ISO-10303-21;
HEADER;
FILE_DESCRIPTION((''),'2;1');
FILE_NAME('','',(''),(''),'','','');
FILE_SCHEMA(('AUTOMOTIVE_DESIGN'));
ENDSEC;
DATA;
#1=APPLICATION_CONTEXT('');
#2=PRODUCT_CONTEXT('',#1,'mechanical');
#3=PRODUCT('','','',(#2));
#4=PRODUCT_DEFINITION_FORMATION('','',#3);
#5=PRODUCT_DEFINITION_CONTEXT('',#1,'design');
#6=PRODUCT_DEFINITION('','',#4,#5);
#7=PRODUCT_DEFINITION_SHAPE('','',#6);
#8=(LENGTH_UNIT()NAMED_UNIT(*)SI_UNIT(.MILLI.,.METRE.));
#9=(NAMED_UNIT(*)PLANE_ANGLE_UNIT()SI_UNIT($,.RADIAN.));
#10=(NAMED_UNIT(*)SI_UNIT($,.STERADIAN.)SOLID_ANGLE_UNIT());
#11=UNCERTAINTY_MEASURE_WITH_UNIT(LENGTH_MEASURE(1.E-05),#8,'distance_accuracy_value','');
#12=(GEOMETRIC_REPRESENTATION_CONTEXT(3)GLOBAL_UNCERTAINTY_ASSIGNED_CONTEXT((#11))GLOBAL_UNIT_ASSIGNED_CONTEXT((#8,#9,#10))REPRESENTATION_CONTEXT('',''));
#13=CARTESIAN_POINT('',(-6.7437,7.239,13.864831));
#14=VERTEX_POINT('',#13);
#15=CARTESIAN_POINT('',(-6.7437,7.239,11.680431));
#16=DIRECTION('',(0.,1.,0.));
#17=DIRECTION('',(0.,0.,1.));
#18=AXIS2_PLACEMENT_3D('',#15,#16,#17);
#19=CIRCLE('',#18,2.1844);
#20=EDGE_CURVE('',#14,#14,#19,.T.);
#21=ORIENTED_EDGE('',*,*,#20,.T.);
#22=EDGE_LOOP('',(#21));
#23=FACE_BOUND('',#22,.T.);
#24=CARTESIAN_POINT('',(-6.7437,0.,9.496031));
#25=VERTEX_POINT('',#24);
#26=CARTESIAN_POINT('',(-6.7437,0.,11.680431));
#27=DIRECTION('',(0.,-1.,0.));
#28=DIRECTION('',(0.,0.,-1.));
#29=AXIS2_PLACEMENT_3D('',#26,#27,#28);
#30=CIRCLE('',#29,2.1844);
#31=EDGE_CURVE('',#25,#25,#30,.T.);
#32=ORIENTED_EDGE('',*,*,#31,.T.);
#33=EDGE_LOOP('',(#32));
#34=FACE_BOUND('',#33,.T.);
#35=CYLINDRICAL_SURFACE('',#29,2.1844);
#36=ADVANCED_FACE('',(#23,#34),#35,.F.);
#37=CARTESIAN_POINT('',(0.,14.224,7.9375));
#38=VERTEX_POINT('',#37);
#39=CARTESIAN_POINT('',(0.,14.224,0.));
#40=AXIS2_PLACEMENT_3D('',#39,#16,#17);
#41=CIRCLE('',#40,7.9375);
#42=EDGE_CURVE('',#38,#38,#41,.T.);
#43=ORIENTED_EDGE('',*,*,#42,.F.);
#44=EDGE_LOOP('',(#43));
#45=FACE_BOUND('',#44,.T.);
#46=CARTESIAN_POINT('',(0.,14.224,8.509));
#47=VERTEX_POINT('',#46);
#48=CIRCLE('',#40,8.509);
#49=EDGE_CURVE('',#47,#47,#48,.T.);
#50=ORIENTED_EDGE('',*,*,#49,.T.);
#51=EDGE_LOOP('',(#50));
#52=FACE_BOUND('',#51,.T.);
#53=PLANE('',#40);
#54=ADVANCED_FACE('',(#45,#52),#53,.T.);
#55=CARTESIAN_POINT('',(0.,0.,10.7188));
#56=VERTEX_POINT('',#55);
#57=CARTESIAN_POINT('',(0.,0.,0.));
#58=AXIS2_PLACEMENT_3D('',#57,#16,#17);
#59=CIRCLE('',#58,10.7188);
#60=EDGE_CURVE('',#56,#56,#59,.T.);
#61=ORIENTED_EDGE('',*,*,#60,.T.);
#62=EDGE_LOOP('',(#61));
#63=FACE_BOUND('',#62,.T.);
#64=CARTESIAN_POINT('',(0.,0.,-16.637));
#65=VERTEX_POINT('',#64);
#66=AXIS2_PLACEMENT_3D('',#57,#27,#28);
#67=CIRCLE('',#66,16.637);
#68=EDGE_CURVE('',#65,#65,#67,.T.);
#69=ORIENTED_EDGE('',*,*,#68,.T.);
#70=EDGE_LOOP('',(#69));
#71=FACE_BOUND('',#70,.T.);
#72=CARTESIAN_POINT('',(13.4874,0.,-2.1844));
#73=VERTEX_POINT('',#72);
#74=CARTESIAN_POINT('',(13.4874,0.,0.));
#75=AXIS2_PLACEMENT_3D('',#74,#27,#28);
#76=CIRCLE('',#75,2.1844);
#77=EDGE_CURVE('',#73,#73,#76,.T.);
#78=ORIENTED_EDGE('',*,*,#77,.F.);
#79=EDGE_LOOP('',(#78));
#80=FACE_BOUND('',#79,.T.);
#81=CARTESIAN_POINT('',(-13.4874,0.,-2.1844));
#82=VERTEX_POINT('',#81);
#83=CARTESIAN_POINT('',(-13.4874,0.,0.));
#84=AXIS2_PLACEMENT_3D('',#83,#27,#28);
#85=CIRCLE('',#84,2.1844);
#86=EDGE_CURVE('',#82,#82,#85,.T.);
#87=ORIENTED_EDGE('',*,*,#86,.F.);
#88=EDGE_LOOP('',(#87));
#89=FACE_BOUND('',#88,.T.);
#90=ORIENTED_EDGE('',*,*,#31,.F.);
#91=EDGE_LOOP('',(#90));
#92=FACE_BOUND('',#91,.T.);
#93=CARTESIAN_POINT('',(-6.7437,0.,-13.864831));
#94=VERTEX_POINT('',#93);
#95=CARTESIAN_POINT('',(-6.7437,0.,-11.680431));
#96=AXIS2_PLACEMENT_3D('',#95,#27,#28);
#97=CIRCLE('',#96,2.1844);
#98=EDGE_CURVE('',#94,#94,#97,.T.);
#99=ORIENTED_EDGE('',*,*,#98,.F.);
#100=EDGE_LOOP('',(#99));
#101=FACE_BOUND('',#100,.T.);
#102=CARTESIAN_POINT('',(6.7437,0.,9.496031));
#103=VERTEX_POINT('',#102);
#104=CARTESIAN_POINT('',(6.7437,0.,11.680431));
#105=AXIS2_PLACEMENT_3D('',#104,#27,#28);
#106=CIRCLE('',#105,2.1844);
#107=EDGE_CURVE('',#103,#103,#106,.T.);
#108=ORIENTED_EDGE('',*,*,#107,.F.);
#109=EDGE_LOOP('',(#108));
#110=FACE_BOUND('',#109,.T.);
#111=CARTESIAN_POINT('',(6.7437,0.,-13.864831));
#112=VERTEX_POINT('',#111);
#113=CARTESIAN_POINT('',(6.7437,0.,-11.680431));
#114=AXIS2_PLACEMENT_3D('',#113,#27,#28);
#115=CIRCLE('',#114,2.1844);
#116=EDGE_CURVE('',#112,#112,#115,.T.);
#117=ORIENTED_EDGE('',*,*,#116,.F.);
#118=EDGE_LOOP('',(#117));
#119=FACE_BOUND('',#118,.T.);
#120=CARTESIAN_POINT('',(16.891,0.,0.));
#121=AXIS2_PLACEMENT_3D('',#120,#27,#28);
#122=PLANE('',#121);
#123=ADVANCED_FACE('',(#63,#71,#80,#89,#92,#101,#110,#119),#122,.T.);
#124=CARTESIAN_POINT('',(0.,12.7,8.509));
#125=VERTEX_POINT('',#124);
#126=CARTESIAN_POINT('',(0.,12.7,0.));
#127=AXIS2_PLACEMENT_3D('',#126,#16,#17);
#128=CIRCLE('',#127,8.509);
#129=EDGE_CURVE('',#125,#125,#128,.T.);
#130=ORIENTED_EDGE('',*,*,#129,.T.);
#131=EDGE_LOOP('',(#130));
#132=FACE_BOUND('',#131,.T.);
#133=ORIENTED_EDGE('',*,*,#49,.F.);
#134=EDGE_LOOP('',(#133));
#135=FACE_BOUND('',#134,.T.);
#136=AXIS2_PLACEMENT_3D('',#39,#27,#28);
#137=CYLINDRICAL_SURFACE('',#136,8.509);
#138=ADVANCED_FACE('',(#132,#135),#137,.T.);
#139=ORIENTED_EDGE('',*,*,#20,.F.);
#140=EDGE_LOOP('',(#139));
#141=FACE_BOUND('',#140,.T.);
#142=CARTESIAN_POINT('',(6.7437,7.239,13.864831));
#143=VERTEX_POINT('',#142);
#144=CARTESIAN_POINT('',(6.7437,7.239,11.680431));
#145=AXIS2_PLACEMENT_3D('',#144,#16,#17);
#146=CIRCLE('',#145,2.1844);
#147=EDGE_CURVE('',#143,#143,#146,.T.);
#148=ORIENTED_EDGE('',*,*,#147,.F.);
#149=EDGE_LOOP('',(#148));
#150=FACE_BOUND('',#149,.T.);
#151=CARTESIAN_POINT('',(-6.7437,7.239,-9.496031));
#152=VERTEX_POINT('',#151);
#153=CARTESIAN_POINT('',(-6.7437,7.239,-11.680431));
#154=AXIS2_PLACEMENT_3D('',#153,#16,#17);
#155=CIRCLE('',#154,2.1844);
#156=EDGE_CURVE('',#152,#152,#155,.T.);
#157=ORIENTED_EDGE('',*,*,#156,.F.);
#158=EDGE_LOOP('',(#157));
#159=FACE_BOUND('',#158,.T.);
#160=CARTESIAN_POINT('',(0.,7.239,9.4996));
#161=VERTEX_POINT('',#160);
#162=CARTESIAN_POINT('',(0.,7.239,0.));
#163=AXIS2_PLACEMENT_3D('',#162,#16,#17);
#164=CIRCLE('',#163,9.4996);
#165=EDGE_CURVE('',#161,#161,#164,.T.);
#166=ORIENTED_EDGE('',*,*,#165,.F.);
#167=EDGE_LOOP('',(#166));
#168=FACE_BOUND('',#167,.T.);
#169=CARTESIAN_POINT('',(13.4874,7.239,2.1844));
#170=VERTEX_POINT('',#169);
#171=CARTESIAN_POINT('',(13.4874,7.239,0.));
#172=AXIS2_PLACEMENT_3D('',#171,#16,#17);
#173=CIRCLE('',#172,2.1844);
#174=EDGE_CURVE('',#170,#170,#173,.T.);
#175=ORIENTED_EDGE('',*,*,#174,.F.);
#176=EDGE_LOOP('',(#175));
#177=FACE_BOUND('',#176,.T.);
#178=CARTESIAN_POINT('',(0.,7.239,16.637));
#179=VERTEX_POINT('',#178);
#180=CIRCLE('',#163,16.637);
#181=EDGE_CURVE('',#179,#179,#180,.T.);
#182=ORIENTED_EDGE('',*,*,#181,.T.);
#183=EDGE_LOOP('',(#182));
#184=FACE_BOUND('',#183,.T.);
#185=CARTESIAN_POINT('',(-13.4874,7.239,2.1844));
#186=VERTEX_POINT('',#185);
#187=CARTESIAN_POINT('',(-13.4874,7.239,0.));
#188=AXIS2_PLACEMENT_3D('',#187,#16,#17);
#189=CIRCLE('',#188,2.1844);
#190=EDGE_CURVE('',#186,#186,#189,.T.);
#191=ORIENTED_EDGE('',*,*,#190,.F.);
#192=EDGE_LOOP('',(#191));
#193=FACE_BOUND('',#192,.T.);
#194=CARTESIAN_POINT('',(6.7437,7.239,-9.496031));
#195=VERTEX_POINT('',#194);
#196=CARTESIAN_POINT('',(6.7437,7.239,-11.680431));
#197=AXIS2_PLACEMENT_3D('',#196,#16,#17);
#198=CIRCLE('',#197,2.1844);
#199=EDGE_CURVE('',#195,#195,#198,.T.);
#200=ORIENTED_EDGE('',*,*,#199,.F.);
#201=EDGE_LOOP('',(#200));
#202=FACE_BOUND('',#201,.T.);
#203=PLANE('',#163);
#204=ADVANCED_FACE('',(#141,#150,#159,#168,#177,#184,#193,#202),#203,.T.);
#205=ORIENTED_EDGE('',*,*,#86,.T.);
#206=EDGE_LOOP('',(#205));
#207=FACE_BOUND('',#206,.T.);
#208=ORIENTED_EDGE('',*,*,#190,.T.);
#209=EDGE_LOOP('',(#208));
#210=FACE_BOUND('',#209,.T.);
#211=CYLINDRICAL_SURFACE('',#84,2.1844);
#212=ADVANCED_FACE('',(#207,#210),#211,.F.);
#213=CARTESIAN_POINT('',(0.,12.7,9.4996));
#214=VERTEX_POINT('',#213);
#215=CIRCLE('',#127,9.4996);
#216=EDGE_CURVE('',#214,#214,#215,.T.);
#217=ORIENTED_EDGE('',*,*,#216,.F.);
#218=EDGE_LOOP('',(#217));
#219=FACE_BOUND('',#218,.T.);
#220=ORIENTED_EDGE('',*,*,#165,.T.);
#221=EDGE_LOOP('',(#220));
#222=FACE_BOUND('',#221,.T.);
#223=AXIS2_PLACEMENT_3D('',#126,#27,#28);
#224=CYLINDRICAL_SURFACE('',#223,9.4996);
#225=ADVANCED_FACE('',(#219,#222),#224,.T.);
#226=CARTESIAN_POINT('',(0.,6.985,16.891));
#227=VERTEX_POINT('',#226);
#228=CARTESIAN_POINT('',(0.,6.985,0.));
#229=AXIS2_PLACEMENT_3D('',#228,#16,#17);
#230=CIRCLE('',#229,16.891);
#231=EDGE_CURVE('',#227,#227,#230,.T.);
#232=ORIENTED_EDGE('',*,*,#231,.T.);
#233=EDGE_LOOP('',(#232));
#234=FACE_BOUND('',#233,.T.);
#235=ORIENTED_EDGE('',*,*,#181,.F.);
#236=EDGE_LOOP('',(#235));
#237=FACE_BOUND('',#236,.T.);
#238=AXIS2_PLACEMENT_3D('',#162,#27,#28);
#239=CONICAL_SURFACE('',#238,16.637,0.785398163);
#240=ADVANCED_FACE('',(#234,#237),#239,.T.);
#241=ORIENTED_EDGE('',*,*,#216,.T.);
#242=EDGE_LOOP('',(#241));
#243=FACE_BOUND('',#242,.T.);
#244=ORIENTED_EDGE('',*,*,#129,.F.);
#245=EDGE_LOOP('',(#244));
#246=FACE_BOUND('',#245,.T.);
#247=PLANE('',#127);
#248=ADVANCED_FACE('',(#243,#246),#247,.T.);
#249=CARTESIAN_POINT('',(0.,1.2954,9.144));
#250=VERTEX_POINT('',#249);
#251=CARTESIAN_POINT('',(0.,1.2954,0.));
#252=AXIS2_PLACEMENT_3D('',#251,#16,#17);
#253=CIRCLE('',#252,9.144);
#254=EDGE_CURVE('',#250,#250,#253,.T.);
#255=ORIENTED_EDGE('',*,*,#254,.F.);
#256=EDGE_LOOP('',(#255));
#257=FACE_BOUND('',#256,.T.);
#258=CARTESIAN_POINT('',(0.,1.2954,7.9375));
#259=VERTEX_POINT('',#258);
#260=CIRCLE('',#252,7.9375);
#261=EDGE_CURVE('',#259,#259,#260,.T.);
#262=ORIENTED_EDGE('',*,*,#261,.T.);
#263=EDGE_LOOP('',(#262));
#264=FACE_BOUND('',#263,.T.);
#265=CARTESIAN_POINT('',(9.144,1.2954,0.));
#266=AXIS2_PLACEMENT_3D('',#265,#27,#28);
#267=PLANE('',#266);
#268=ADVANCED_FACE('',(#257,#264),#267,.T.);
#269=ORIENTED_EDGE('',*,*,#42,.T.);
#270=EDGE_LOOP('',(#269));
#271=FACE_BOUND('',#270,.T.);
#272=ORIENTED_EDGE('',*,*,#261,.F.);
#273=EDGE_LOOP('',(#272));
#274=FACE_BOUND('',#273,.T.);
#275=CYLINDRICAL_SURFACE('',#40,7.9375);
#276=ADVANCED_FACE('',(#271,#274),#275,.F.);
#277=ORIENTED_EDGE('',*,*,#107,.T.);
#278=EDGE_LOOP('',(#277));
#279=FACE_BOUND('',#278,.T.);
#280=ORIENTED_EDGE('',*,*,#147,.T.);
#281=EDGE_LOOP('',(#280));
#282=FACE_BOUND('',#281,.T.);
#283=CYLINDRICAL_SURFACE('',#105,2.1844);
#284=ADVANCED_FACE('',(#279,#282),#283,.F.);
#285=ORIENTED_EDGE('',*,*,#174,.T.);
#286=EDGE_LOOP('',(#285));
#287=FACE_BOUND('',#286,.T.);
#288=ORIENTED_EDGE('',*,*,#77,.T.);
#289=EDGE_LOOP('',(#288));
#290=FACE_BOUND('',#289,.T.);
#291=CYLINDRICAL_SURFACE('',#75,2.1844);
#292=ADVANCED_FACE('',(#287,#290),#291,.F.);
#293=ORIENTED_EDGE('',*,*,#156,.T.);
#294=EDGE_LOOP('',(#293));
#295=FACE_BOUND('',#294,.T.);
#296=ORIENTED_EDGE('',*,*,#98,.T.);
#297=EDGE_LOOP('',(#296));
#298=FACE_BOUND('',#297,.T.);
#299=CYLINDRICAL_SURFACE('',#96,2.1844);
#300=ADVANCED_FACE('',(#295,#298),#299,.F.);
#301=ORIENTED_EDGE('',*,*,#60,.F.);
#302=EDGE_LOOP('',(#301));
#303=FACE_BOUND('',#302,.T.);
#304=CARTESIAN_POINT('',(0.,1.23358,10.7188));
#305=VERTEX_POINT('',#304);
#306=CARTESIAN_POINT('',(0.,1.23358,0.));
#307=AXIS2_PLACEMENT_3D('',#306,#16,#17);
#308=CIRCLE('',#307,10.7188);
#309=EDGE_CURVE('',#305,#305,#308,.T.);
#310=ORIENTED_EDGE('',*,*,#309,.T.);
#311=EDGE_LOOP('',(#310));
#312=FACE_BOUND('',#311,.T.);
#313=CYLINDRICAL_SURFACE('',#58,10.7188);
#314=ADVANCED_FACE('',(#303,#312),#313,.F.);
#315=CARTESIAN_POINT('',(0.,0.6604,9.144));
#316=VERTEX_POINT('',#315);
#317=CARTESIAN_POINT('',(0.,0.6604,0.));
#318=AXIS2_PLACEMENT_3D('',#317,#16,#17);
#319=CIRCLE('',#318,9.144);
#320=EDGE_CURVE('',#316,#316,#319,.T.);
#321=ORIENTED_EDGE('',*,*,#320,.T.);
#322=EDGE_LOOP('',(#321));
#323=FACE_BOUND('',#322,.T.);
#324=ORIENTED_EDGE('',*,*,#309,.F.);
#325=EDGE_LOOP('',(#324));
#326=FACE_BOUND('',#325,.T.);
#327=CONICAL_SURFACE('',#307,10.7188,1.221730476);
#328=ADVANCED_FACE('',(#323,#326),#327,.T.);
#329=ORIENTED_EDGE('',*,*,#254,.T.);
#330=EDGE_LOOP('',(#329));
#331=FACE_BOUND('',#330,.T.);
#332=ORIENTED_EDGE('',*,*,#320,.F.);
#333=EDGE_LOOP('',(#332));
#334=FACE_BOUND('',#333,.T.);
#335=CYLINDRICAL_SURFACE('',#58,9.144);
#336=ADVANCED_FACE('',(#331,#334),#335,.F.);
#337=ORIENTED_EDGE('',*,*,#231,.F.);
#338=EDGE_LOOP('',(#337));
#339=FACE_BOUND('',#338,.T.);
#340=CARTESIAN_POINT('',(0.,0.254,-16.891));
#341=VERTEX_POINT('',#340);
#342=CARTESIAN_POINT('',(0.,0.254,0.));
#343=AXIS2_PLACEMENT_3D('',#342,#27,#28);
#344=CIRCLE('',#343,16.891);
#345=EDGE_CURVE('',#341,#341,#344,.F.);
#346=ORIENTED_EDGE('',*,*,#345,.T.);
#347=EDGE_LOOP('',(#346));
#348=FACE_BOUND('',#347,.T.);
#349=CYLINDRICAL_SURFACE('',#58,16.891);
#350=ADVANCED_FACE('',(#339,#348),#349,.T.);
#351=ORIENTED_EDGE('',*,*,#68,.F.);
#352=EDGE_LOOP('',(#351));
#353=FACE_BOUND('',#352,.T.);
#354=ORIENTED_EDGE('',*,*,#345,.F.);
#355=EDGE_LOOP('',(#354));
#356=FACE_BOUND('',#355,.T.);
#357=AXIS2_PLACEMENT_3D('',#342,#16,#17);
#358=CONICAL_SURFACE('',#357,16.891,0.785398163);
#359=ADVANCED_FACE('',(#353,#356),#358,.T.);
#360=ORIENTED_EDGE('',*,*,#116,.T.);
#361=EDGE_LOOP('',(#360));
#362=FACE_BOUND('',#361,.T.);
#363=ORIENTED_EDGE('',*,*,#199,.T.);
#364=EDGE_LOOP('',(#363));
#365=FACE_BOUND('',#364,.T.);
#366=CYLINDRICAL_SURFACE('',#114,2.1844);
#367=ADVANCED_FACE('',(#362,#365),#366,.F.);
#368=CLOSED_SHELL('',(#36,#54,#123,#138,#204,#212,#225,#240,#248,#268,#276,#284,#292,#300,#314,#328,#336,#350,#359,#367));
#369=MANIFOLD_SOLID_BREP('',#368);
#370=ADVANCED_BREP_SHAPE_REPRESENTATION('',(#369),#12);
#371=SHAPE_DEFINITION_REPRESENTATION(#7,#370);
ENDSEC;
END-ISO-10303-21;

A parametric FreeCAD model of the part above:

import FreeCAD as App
import Part
import Sketcher

V = App.Vector
Q = App.Units.Quantity


def edges_at(feature, points):
    """Names of the edges that pass closest to the given points."""
    edges = feature.Shape.Edges
    near = lambda p: min(range(len(edges)), key=lambda i: edges[i].distToShape(Part.Vertex(*p))[0])
    return sorted({f"Edge{near(p) + 1}" for p in points})

doc = App.newDocument("Part")
body = doc.addObject("PartDesign::Body", "Body")

# Sketch on XY plane
sketch1 = body.newObject("Sketcher::SketchObject", "Sketch")
sketch1.AttachmentSupport = (doc.getObject("XY_Plane"), [""])
sketch1.MapMode = "FlatFace"
sketch1.addGeometry([
    Part.LineSegment(V(9.14, 1.3, 0), V(0, 1.3, 0)),  # 0
    Part.LineSegment(V(0, 1.3, 0), V(0, 7.24, 0)),  # 1
    Part.LineSegment(V(0, 7.24, 0), V(16.64, 7.24, 0)),  # 2
    Part.LineSegment(V(16.64, 7.24, 0), V(16.89, 6.99, 0)),  # 3
    Part.LineSegment(V(16.89, 6.99, 0), V(16.89, 0, 0)),  # 4
    Part.LineSegment(V(16.89, 0, 0), V(10.72, 0, 0)),  # 5
    Part.LineSegment(V(10.72, 0, 0), V(10.72, 1.23, 0)),  # 6
    Part.LineSegment(V(10.72, 1.23, 0), V(9.14, 0.66, 0)),  # 7
    Part.LineSegment(V(9.14, 0.66, 0), V(9.14, 1.3, 0)),  # 8
], False)
sketch1.addConstraint([
    Sketcher.Constraint("Coincident", 0, 2, 1, 1),
    Sketcher.Constraint("Coincident", 1, 2, 2, 1),
    Sketcher.Constraint("Coincident", 2, 2, 3, 1),
    Sketcher.Constraint("Coincident", 3, 2, 4, 1),
    Sketcher.Constraint("Coincident", 4, 2, 5, 1),
    Sketcher.Constraint("Coincident", 5, 2, 6, 1),
    Sketcher.Constraint("Coincident", 6, 2, 7, 1),
    Sketcher.Constraint("Coincident", 7, 2, 8, 1),
    Sketcher.Constraint("Coincident", 8, 2, 0, 1),
    Sketcher.Constraint("Horizontal", 0),
    Sketcher.Constraint("Vertical", 1),
    Sketcher.Constraint("Horizontal", 2),
    Sketcher.Constraint("Vertical", 4),
    Sketcher.Constraint("Horizontal", 5),
    Sketcher.Constraint("Vertical", 6),
    Sketcher.Constraint("Vertical", 8),
    Sketcher.Constraint("PointOnObject", 0, 2, -2),
    Sketcher.Constraint("PointOnObject", 4, 2, -1),
    Sketcher.Constraint("Angle", 3, Q("-45 deg")),
    Sketcher.Constraint("Angle", 7, Q("-160 deg")),
    Sketcher.Constraint("DistanceX", 0, 2, 0, 1, Q("0.36 in")),
    Sketcher.Constraint("DistanceX", 2, 1, 2, 2, Q("0.655 in")),
    Sketcher.Constraint("DistanceX", 5, 2, 5, 1, Q("0.243 in")),
    Sketcher.Constraint("DistanceY", 1, 1, 1, 2, Q("0.234 in")),
    Sketcher.Constraint("DistanceY", 4, 2, 4, 1, Q("0.275 in")),
    Sketcher.Constraint("DistanceY", 8, 1, 8, 2, Q("0.025 in")),
    Sketcher.Constraint("DistanceX", 2, 2, 3, 2, Q("0.01 in")),
])
revolution = body.newObject("PartDesign::Revolution", "Revolution")
revolution.Profile = sketch1
revolution.ReferenceAxis = (sketch1, ["V_Axis"])
revolution.Angle = 360

# Sketch on XZ plane
sketch2 = body.newObject("Sketcher::SketchObject", "Sketch001")
sketch2.AttachmentSupport = (doc.getObject("XZ_Plane"), [""])
sketch2.MapMode = "FlatFace"
sketch2.AttachmentOffset = App.Placement(V(0, 0, -0.285 * 25.4), App.Rotation())
sketch2.addGeometry(Part.Circle(V(0, 0, 0), V(0, 0, 1), 9), False)
sketch2.addConstraint([
    Sketcher.Constraint("Coincident", 0, 3, -1, 1),
    Sketcher.Constraint("Diameter", 0, Q("0.748 in")),
])
pad1 = body.newObject("PartDesign::Pad", "Pad")
pad1.Profile = sketch2
pad1.Length = Q("0.215 in")
pad1.Reversed = True

# Sketch on XZ plane
sketch3 = body.newObject("Sketcher::SketchObject", "Sketch002")
sketch3.AttachmentSupport = (doc.getObject("XZ_Plane"), [""])
sketch3.MapMode = "FlatFace"
sketch3.AttachmentOffset = App.Placement(V(0, 0, -0.5 * 25.4), App.Rotation())
sketch3.addGeometry(Part.Circle(V(0, 0, 0), V(0, 0, 1), 9), False)
sketch3.addConstraint([
    Sketcher.Constraint("Coincident", 0, 3, -1, 1),
    Sketcher.Constraint("Diameter", 0, Q("0.67 in")),
])
pad2 = body.newObject("PartDesign::Pad", "Pad001")
pad2.Profile = sketch3
pad2.Length = Q("0.06 in")
pad2.Reversed = True

# Sketch on XZ plane
sketch4 = body.newObject("Sketcher::SketchObject", "Sketch003")
sketch4.AttachmentSupport = (doc.getObject("XZ_Plane"), [""])
sketch4.MapMode = "FlatFace"
sketch4.AttachmentOffset = App.Placement(V(0, 0, -0.56 * 25.4), App.Rotation())
sketch4.addGeometry(Part.Circle(V(0, 0, 0), V(0, 0, 1), 8), False)
sketch4.addConstraint([
    Sketcher.Constraint("Coincident", 0, 3, -1, 1),
    Sketcher.Constraint("Diameter", 0, Q("0.625 in")),
])
doc.recompute()
hole = body.newObject("PartDesign::Hole", "Hole")
hole.Profile = sketch4
hole.ThreadType = "None"
hole.Diameter = Q("0.625 in")
hole.DepthType = "Dimension"
hole.Depth = Q("0.509 in")
hole.DrillPoint = "Flat"
hole.Reversed = True

# Sketch on XZ plane
sketch5 = body.newObject("Sketcher::SketchObject", "Sketch004")
sketch5.AttachmentSupport = (doc.getObject("XZ_Plane"), [""])
sketch5.MapMode = "FlatFace"
sketch5.addGeometry([
    Part.Circle(V(13.5, 0, 0), V(0, 0, 1), 2.2),  # 0
    Part.Circle(V(6.7, 11.7, 0), V(0, 0, 1), 2.2),  # 1
    Part.Circle(V(-6.7, 11.7, 0), V(0, 0, 1), 2.2),  # 2
    Part.Circle(V(-13.5, 0, 0), V(0, 0, 1), 2.2),  # 3
    Part.Circle(V(-6.7, -11.7, 0), V(0, 0, 1), 2.2),  # 4
    Part.Circle(V(6.7, -11.7, 0), V(0, 0, 1), 2.2),  # 5
], False)
sketch5.addConstraint([
    Sketcher.Constraint("Equal", 0, 1),
    Sketcher.Constraint("Equal", 1, 2),
    Sketcher.Constraint("Equal", 2, 3),
    Sketcher.Constraint("Equal", 3, 4),
    Sketcher.Constraint("Equal", 4, 5),
    Sketcher.Constraint("Symmetric", 0, 3, 3, 3, -1, 1),
    Sketcher.Constraint("Symmetric", 1, 3, 4, 3, -1, 1),
    Sketcher.Constraint("Symmetric", 2, 3, 5, 3, -1, 1),
    Sketcher.Constraint("Symmetric", 1, 3, 2, 3, -2),
    Sketcher.Constraint("PointOnObject", 0, 3, -1),
    Sketcher.Constraint("Diameter", 0, Q("0.172 in")),
    Sketcher.Constraint("DistanceX", -1, 1, 0, 3, Q("0.531 in")),
    Sketcher.Constraint("DistanceX", 2, 3, 1, 3, Q("0.531 in")),
    Sketcher.Constraint("DistanceY", -1, 1, 1, 3, 11.680431),
])
doc.recompute()
hole2 = body.newObject("PartDesign::Hole", "Hole001")
hole2.Profile = sketch5
hole2.ThreadType = "None"
hole2.Diameter = Q("0.172 in")
hole2.DepthType = "Dimension"
hole2.Depth = Q("0.56 in")
hole2.DrillPoint = "Flat"
doc.recompute()

chamfer = body.newObject("PartDesign::Chamfer", "Chamfer")
chamfer.Base = (hole2, edges_at(hole2, [(-16.891, 0, 0)]))
chamfer.Size = Q("0.01 in")

doc.recompute()
